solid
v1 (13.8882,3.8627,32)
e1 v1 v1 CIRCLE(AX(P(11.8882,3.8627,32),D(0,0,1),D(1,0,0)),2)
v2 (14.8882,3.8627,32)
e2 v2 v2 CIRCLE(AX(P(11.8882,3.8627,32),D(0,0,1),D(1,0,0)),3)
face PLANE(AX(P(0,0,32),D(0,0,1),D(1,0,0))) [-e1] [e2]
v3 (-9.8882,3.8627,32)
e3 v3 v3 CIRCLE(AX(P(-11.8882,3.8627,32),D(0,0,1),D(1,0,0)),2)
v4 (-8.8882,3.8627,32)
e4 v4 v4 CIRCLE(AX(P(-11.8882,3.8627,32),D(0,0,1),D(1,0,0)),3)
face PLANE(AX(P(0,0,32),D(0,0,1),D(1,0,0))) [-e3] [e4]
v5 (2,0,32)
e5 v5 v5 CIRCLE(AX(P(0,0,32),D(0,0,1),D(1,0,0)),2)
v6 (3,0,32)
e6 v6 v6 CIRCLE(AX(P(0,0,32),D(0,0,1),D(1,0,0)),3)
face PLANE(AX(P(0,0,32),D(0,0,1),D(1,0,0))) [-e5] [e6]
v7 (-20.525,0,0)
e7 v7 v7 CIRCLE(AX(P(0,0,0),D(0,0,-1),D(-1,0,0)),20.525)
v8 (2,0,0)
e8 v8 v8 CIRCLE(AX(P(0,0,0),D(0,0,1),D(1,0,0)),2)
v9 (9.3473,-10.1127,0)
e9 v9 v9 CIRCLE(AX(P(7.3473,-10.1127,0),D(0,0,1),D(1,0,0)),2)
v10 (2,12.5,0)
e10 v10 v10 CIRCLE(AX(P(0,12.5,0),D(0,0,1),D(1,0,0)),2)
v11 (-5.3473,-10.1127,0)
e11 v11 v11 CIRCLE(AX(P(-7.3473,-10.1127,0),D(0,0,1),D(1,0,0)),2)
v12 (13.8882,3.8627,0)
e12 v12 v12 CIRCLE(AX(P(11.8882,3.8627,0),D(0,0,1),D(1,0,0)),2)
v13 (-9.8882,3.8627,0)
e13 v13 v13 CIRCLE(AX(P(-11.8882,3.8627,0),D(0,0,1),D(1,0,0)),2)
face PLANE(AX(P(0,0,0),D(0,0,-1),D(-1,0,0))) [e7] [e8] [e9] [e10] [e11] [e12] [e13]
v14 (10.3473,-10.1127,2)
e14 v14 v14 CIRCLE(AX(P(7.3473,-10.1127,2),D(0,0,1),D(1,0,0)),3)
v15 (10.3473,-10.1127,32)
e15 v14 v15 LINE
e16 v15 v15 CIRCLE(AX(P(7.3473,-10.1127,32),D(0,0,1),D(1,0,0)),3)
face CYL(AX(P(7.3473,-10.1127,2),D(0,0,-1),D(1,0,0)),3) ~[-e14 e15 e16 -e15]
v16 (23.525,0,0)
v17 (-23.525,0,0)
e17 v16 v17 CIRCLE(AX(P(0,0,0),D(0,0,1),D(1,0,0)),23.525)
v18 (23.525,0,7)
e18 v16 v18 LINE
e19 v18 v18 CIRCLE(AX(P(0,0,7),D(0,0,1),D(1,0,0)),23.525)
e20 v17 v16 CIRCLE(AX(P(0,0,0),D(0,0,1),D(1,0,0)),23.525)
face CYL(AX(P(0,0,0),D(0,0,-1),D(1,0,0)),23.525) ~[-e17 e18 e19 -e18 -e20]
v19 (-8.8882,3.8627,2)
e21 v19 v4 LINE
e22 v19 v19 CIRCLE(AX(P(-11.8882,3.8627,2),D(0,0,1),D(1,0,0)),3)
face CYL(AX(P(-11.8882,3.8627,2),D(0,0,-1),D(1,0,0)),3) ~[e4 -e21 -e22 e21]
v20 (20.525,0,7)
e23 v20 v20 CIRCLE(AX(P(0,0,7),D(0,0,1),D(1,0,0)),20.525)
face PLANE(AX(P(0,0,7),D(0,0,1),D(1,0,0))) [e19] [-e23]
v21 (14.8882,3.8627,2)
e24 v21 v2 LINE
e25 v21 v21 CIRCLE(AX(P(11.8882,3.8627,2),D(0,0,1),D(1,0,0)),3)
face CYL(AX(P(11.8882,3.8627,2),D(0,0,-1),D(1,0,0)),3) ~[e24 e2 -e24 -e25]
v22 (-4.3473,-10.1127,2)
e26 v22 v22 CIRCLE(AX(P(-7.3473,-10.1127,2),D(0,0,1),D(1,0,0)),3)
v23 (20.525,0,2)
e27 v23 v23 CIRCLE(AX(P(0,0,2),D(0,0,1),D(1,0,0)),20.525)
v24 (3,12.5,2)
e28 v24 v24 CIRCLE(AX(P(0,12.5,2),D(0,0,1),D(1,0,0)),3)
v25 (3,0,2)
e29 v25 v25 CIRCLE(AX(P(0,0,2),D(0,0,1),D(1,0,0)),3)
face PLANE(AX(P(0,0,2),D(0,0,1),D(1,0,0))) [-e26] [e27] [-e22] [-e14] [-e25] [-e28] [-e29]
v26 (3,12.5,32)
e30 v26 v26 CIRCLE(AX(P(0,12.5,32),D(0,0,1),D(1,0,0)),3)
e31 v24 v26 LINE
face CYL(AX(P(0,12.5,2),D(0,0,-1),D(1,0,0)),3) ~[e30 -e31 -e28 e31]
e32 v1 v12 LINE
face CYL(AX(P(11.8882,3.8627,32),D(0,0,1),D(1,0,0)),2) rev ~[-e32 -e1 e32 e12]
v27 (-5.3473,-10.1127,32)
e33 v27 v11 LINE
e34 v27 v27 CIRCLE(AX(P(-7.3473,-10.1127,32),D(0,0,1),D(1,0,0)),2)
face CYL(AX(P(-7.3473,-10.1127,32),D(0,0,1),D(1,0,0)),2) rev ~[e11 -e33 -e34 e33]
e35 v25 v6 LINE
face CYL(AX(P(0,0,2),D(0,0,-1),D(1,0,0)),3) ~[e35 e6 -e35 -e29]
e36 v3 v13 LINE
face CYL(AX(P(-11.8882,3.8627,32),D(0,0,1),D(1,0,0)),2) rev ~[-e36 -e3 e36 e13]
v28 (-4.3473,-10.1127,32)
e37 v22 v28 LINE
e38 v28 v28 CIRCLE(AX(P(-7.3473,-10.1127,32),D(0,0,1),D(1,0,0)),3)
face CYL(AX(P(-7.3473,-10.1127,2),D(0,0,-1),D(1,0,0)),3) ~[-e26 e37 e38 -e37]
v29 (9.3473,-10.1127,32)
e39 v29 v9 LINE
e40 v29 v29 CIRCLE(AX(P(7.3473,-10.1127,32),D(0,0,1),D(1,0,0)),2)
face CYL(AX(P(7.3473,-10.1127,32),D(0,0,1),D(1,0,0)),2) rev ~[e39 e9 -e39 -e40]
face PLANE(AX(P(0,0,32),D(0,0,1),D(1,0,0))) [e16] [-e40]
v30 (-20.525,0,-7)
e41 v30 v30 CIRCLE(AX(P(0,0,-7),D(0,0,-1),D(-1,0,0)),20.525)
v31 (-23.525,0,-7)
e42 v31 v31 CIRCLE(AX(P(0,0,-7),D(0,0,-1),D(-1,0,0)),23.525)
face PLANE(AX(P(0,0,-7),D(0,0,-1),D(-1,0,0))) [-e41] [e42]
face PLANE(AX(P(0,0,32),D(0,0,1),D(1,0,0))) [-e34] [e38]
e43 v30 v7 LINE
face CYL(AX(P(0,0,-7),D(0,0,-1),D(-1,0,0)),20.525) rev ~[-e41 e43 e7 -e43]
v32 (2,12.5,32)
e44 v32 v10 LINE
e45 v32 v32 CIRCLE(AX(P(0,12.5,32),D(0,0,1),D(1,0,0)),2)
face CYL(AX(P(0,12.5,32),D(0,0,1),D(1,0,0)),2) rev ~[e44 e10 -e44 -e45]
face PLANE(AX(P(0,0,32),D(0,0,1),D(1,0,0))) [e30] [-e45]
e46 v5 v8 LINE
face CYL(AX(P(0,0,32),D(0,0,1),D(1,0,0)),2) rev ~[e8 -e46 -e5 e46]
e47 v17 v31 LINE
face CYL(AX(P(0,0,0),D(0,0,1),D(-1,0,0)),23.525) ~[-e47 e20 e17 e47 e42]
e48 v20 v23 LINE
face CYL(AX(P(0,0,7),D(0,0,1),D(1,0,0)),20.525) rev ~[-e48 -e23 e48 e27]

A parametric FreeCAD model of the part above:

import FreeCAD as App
import Part
import Sketcher

doc = App.newDocument("Part")
body = doc.addObject("PartDesign::Body", "Body")

# Sketch on XY plane
sketch1 = body.newObject("Sketcher::SketchObject", "Sketch")
sketch1.AttachmentSupport = (doc.getObject("XY_Plane"), [""])
sketch1.MapMode = "FlatFace"
sketch1.addGeometry(Part.Circle(App.Vector(0, 0, 0), App.Vector(0, 0, 1), 24), False)
sketch1.addConstraint([
    Sketcher.Constraint("Coincident", 0, 3, -1, 1),
    Sketcher.Constraint("Diameter", 0, 47.05),
])
pad1 = body.newObject("PartDesign::Pad", "Pad")
pad1.Profile = sketch1
pad1.Length = 7

# Sketch on XY plane
sketch2 = body.newObject("Sketcher::SketchObject", "Sketch001")
sketch2.AttachmentSupport = (doc.getObject("XY_Plane"), [""])
sketch2.MapMode = "FlatFace"
sketch2.AttachmentOffset = App.Placement(App.Vector(0, 0, 7), App.Rotation())
sketch2.addGeometry(Part.Circle(App.Vector(0, 0, 0), App.Vector(0, 0, 1), 21), False)
sketch2.addConstraint([
    Sketcher.Constraint("Coincident", 0, 3, -1, 1),
    Sketcher.Constraint("Diameter", 0, 41.05),
])
pocket1 = body.newObject("PartDesign::Pocket", "Pocket")
pocket1.Profile = sketch2
pocket1.Length = 5

# Sketch on XY plane
sketch3 = body.newObject("Sketcher::SketchObject", "Sketch002")
sketch3.AttachmentSupport = (doc.getObject("XY_Plane"), [""])
sketch3.MapMode = "FlatFace"
sketch3.AttachmentOffset = App.Placement(App.Vector(0, 0, 2), App.Rotation())
sketch3.addGeometry([
    Part.Circle(App.Vector(0, 0, 0), App.Vector(0, 0, 1), 3),  # 0
    Part.Circle(App.Vector(0, 12.5, 0), App.Vector(0, 0, 1), 3),  # 1
    Part.Circle(App.Vector(-11.9, 3.9, 0), App.Vector(0, 0, 1), 3),  # 2
    Part.Circle(App.Vector(-7.3, -10.1, 0), App.Vector(0, 0, 1), 3),  # 3
    Part.Circle(App.Vector(7.3, -10.1, 0), App.Vector(0, 0, 1), 3),  # 4
    Part.Circle(App.Vector(11.9, 3.9, 0), App.Vector(0, 0, 1), 3),  # 5
], False)
sketch3.addConstraint([
    Sketcher.Constraint("Coincident", 0, 3, -1, 1),
    Sketcher.Constraint("Equal", 0, 1),
    Sketcher.Constraint("Equal", 1, 2),
    Sketcher.Constraint("Equal", 2, 3),
    Sketcher.Constraint("Equal", 3, 4),
    Sketcher.Constraint("Equal", 4, 5),
    Sketcher.Constraint("Symmetric", 3, 3, 4, 3, -2),
    Sketcher.Constraint("Symmetric", 2, 3, 5, 3, -2),
    Sketcher.Constraint("PointOnObject", 1, 3, -2),
    Sketcher.Constraint("Diameter", 0, 6.0),
    Sketcher.Constraint("DistanceY", -1, 1, 1, 3, 12.5),
    Sketcher.Constraint("DistanceX", 2, 3, 3, 3, 4.541),
    Sketcher.Constraint("DistanceX", 2, 3, -1, 1, 11.8882),
    Sketcher.Constraint("DistanceY", -1, 1, 2, 3, 3.8627),
    Sketcher.Constraint("DistanceY", 3, 3, -1, 1, 10.1127),
])
pad2 = body.newObject("PartDesign::Pad", "Pad001")
pad2.Profile = sketch3
pad2.Length = 30

# Sketch on XY plane
sketch4 = body.newObject("Sketcher::SketchObject", "Sketch003")
sketch4.AttachmentSupport = (doc.getObject("XY_Plane"), [""])
sketch4.MapMode = "FlatFace"
sketch4.AttachmentOffset = App.Placement(App.Vector(0, 0, 32), App.Rotation())
sketch4.addGeometry([
    Part.Circle(App.Vector(0, 0, 0), App.Vector(0, 0, 1), 2),  # 0
    Part.Circle(App.Vector(-11.9, 3.9, 0), App.Vector(0, 0, 1), 2),  # 1
    Part.Circle(App.Vector(-7.3, -10.1, 0), App.Vector(0, 0, 1), 2),  # 2
    Part.Circle(App.Vector(7.3, -10.1, 0), App.Vector(0, 0, 1), 2),  # 3
    Part.Circle(App.Vector(11.9, 3.9, 0), App.Vector(0, 0, 1), 2),  # 4
    Part.Circle(App.Vector(0, 12.5, 0), App.Vector(0, 0, 1), 2),  # 5
], False)
sketch4.addConstraint([
    Sketcher.Constraint("Coincident", 0, 3, -1, 1),
    Sketcher.Constraint("Equal", 0, 1),
    Sketcher.Constraint("Equal", 1, 2),
    Sketcher.Constraint("Equal", 2, 3),
    Sketcher.Constraint("Equal", 3, 4),
    Sketcher.Constraint("Equal", 4, 5),
    Sketcher.Constraint("Symmetric", 2, 3, 3, 3, -2),
    Sketcher.Constraint("Symmetric", 1, 3, 4, 3, -2),
    Sketcher.Constraint("PointOnObject", 5, 3, -2),
    Sketcher.Constraint("Diameter", 0, 4.0),
    Sketcher.Constraint("DistanceY", -1, 1, 5, 3, 12.5),
    Sketcher.Constraint("DistanceX", 1, 3, 2, 3, 4.541),
    Sketcher.Constraint("DistanceX", 1, 3, -1, 1, 11.8882),
    Sketcher.Constraint("DistanceY", -1, 1, 1, 3, 3.8627),
    Sketcher.Constraint("DistanceY", 2, 3, -1, 1, 10.1127),
])
pocket2 = body.newObject("PartDesign::Pocket", "Pocket001")
pocket2.Profile = sketch4
pocket2.Length = 40

# Sketch on XY plane
sketch5 = body.newObject("Sketcher::SketchObject", "Sketch004")
sketch5.AttachmentSupport = (doc.getObject("XY_Plane"), [""])
sketch5.MapMode = "FlatFace"
sketch5.addGeometry(Part.Circle(App.Vector(0, 0, 0), App.Vector(0, 0, 1), 24), False)
sketch5.addConstraint([
    Sketcher.Constraint("Coincident", 0, 3, -1, 1),
    Sketcher.Constraint("Diameter", 0, 47.05),
])
pad3 = body.newObject("PartDesign::Pad", "Pad002")
pad3.Profile = sketch5
pad3.Length = 7
pad3.Reversed = True

# Sketch on XY plane
sketch6 = body.newObject("Sketcher::SketchObject", "Sketch005")
sketch6.AttachmentSupport = (doc.getObject("XY_Plane"), [""])
sketch6.MapMode = "FlatFace"
sketch6.AttachmentOffset = App.Placement(App.Vector(0, 0, -7), App.Rotation())
sketch6.addGeometry(Part.Circle(App.Vector(0, 0, 0), App.Vector(0, 0, 1), 21), False)
sketch6.addConstraint([
    Sketcher.Constraint("Coincident", 0, 3, -1, 1),
    Sketcher.Constraint("Diameter", 0, 41.05),
])
pocket3 = body.newObject("PartDesign::Pocket", "Pocket002")
pocket3.Profile = sketch6
pocket3.Length = 7
pocket3.Reversed = True

doc.recompute()
